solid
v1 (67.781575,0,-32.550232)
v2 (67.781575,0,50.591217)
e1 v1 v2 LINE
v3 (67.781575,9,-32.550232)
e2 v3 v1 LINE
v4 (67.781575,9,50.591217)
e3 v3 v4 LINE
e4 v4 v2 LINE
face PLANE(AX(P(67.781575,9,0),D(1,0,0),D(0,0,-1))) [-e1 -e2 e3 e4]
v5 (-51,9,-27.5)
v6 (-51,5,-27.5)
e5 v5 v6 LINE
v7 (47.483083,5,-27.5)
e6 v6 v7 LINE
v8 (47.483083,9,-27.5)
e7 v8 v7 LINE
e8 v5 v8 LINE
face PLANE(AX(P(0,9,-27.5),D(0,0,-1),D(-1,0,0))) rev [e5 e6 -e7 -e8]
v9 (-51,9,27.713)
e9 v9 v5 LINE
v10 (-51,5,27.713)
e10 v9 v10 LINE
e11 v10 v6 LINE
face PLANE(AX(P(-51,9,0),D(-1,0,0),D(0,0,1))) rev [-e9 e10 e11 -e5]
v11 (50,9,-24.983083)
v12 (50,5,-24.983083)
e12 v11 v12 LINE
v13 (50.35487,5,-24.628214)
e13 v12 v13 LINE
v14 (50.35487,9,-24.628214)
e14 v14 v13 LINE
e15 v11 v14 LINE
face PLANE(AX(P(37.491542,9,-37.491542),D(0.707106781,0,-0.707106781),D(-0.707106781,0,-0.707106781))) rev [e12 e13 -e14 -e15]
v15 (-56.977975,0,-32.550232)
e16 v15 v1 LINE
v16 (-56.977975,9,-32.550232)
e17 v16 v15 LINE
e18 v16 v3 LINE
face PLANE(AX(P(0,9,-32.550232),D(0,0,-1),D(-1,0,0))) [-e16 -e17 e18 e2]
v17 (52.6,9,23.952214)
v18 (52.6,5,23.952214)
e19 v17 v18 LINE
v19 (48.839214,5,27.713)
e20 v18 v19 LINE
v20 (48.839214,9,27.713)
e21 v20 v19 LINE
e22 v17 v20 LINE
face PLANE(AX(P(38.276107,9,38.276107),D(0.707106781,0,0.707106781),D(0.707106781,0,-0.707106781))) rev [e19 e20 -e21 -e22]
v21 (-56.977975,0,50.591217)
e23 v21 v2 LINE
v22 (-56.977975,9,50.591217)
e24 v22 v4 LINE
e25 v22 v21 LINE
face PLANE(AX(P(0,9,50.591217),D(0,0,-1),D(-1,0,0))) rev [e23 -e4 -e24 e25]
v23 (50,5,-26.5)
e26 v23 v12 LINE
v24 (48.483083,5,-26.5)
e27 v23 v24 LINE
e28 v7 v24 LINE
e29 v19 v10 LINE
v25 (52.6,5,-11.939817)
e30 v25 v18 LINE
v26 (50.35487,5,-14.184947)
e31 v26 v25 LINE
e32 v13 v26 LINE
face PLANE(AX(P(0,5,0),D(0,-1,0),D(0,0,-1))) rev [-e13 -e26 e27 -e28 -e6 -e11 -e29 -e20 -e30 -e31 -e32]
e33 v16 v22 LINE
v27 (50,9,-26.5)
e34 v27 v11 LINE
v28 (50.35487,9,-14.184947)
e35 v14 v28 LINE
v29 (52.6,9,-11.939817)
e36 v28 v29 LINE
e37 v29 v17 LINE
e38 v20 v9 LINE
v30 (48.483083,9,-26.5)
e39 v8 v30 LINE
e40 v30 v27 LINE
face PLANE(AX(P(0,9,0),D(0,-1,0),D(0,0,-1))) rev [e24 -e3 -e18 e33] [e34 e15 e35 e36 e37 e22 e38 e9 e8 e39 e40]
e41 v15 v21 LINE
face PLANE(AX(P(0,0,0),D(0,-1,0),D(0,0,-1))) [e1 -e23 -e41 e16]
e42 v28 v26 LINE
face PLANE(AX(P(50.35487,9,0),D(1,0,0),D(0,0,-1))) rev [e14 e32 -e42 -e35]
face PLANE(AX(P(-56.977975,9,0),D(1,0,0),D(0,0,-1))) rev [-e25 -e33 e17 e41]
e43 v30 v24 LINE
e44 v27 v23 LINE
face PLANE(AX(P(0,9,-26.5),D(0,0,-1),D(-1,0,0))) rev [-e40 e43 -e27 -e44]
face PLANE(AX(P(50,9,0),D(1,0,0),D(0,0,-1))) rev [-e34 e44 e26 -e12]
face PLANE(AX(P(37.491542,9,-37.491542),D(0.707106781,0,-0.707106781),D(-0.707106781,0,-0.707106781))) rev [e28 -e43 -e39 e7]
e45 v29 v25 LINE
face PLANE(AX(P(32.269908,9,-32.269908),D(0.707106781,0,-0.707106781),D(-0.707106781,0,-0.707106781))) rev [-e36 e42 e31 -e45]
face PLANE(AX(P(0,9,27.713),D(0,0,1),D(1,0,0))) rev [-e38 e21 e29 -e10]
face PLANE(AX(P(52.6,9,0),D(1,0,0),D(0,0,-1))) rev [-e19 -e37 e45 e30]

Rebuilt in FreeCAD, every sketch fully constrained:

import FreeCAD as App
import Part
import Sketcher
Q = App.Units.Quantity

doc = App.newDocument("Part")
params = doc.addObject("Spreadsheet::Sheet", "Params")
for row, (alias, value) in enumerate([
    ("sketch1_width", "100 mm"),
    ("sketch1_height", "53 mm"),
    ("pad1_length", "5 mm"),
    ("pad2_length", "9 mm"),
    ("pad3_length", "5 mm"),
], start=1):
    params.set(f"A{row}", alias)
    params.set(f"B{row}", "=" + value)
    params.setAlias(f"B{row}", alias)

body = doc.addObject("PartDesign::Body", "Body")

# Sketch on XZ plane
sketch1 = body.newObject("Sketcher::SketchObject", "Sketch")
sketch1.AttachmentSupport = (doc.getObject("XZ_Plane"), [""])
sketch1.MapMode = "FlatFace"
sketch1.addGeometry([
    Part.LineSegment(App.Vector(-50, -26, 0), App.Vector(-50, 26, 0)),
    Part.LineSegment(App.Vector(-50, 26, 0), App.Vector(50, 26, 0)),
    Part.LineSegment(App.Vector(50, 26, 0), App.Vector(50, -26, 0)),
    Part.LineSegment(App.Vector(50, -26, 0), App.Vector(-50, -26, 0)),
], False)
sketch1.addConstraint([
    Sketcher.Constraint("Coincident", 0, 2, 1, 1),
    Sketcher.Constraint("Coincident", 1, 2, 2, 1),
    Sketcher.Constraint("Coincident", 2, 2, 3, 1),
    Sketcher.Constraint("Coincident", 3, 2, 0, 1),
    Sketcher.Constraint("Vertical", 0),
    Sketcher.Constraint("Horizontal", 1),
    Sketcher.Constraint("Vertical", 2),
    Sketcher.Constraint("Horizontal", 3),
    Sketcher.Constraint("Symmetric", 0, 2, 2, 2, -1, 1),
    Sketcher.Constraint("DistanceX", 1, 1, 1, 2, Q("100 mm")),
    Sketcher.Constraint("DistanceY", 0, 1, 0, 2, Q("53 mm")),
])
sketch1.setExpression("Constraints[9]", "Params.sketch1_width")
sketch1.setExpression("Constraints[10]", "Params.sketch1_height")
pad1 = body.newObject("PartDesign::Pad", "Pad")
pad1.Profile = sketch1
pad1.setExpression("Length", "Params.pad1_length")
pad1.Reversed = True

# Sketch on XZ plane
sketch2 = body.newObject("Sketcher::SketchObject", "Sketch001")
sketch2.AttachmentSupport = (doc.getObject("XZ_Plane"), [""])
sketch2.MapMode = "FlatFace"
sketch2.addGeometry([
    Part.Circle(App.Vector(46.5, 24.2, 0), App.Vector(0, 0, 1), 1.6),
    Part.Circle(App.Vector(40.2, -24.1, 0), App.Vector(0, 0, 1), 1.6),
    Part.Circle(App.Vector(-34.8, -24.1, 0), App.Vector(0, 0, 1), 1.6),
    Part.Circle(App.Vector(-36, 24.2, 0), App.Vector(0, 0, 1), 1.6),
], False)
sketch2.addConstraint([
    Sketcher.Constraint("Equal", 0, 1),
    Sketcher.Constraint("Equal", 1, 2),
    Sketcher.Constraint("Equal", 2, 3),
    Sketcher.Constraint("Horizontal", 1, 3, 2, 3),
    Sketcher.Constraint("Horizontal", 0, 3, 3, 3),
    Sketcher.Constraint("Diameter", 0, Q("3.175 mm")),
    Sketcher.Constraint("DistanceX", 3, 3, 1, 3, Q("76.2 mm")),
    Sketcher.Constraint("DistanceX", -1, 1, 0, 3, Q("46.52 mm")),
    Sketcher.Constraint("DistanceX", -1, 1, 1, 3, Q("40.17 mm")),
    Sketcher.Constraint("DistanceX", 2, 3, -1, 1, Q("34.76 mm")),
    Sketcher.Constraint("DistanceY", 1, 3, 0, 3, Q("48.26 mm")),
    Sketcher.Constraint("DistanceY", -1, 1, 0, 3, Q("24.173 mm")),
])
pocket1 = body.newObject("PartDesign::Pocket", "Pocket")
pocket1.Profile = sketch2
pocket1.Type = "ThroughAll"

# Sketch on XZ plane
sketch3 = body.newObject("Sketcher::SketchObject", "Sketch002")
sketch3.AttachmentSupport = (doc.getObject("XZ_Plane"), [""])
sketch3.MapMode = "FlatFace"
sketch3.addGeometry([
    Part.LineSegment(App.Vector(-57, 50.6, 0), App.Vector(-57, -32.6, 0)),  # 0
    Part.LineSegment(App.Vector(-57, -32.6, 0), App.Vector(67.8, -32.6, 0)),  # 1
    Part.LineSegment(App.Vector(67.8, -32.6, 0), App.Vector(67.8, 50.6, 0)),  # 2
    Part.LineSegment(App.Vector(67.8, 50.6, 0), App.Vector(-57, 50.6, 0)),  # 3
    Part.LineSegment(App.Vector(52.6, 24, 0), App.Vector(52.6, -11.9, 0)),  # 4
    Part.LineSegment(App.Vector(52.6, -11.9, 0), App.Vector(50.4, -14.2, 0)),  # 5
    Part.LineSegment(App.Vector(50.4, -14.2, 0), App.Vector(50.4, -24.6, 0)),  # 6
    Part.LineSegment(App.Vector(50.4, -24.6, 0), App.Vector(50, -25, 0)),  # 7
    Part.LineSegment(App.Vector(50, -25, 0), App.Vector(50, -26.5, 0)),  # 8
    Part.LineSegment(App.Vector(50, -26.5, 0), App.Vector(48.5, -26.5, 0)),  # 9
    Part.LineSegment(App.Vector(48.5, -26.5, 0), App.Vector(47.5, -27.5, 0)),  # 10
    Part.LineSegment(App.Vector(47.5, -27.5, 0), App.Vector(-51, -27.5, 0)),  # 11
    Part.LineSegment(App.Vector(-51, -27.5, 0), App.Vector(-51, 27.7, 0)),  # 12
    Part.LineSegment(App.Vector(-51, 27.7, 0), App.Vector(48.8, 27.7, 0)),  # 13
    Part.LineSegment(App.Vector(48.8, 27.7, 0), App.Vector(52.6, 24, 0)),  # 14
], False)
sketch3.addConstraint([
    Sketcher.Constraint("Coincident", 0, 2, 1, 1),
    Sketcher.Constraint("Coincident", 1, 2, 2, 1),
    Sketcher.Constraint("Coincident", 2, 2, 3, 1),
    Sketcher.Constraint("Coincident", 3, 2, 0, 1),
    Sketcher.Constraint("Coincident", 4, 2, 5, 1),
    Sketcher.Constraint("Coincident", 5, 2, 6, 1),
    Sketcher.Constraint("Coincident", 6, 2, 7, 1),
    Sketcher.Constraint("Coincident", 7, 2, 8, 1),
    Sketcher.Constraint("Coincident", 8, 2, 9, 1),
    Sketcher.Constraint("Coincident", 9, 2, 10, 1),
    Sketcher.Constraint("Coincident", 10, 2, 11, 1),
    Sketcher.Constraint("Coincident", 11, 2, 12, 1),
    Sketcher.Constraint("Coincident", 12, 2, 13, 1),
    Sketcher.Constraint("Coincident", 13, 2, 14, 1),
    Sketcher.Constraint("Coincident", 14, 2, 4, 1),
    Sketcher.Constraint("Vertical", 0),
    Sketcher.Constraint("Horizontal", 1),
    Sketcher.Constraint("Vertical", 2),
    Sketcher.Constraint("Horizontal", 3),
    Sketcher.Constraint("Vertical", 4),
    Sketcher.Constraint("Vertical", 6),
    Sketcher.Constraint("Vertical", 8),
    Sketcher.Constraint("Horizontal", 9),
    Sketcher.Constraint("Horizontal", 11),
    Sketcher.Constraint("Vertical", 12),
    Sketcher.Constraint("Horizontal", 13),
    Sketcher.Constraint("Parallel", 5, 7),
    Sketcher.Constraint("Parallel", 7, 10),
    Sketcher.Constraint("Perpendicular", 10, 14),
    Sketcher.Constraint("Equal", 9, 8),
    Sketcher.Constraint("Angle", 5, Q("-135 deg")),
    Sketcher.Constraint("DistanceX", -1, 1, 7, 2, Q("50 mm")),
    Sketcher.Constraint("DistanceX", 11, 2, -1, 1, Q("51 mm")),
    Sketcher.Constraint("DistanceX", 10, 2, 9, 2, Q("1 mm")),
    Sketcher.Constraint("DistanceX", -1, 1, 4, 2, Q("52.6 mm")),
    Sketcher.Constraint("DistanceY", 8, 2, -1, 1, Q("26.5 mm")),
    Sketcher.Constraint("DistanceY", 12, 1, 12, 2, Q("55.213 mm")),
    Sketcher.Constraint("DistanceX", 1, 1, 1, 2, Q("124.759549 mm")),
    Sketcher.Constraint("DistanceY", 0, 2, 0, 1, Q("83.141448 mm")),
    Sketcher.Constraint("DistanceY", 4, 2, 4, 1, Q("35.89203 mm")),
    Sketcher.Constraint("DistanceY", 7, 2, 2, 2, Q("75.5743 mm")),
    Sketcher.Constraint("Distance", 7, Q("0.501862 mm")),
    Sketcher.Constraint("DistanceX", 9, 2, 9, 1, Q("1.516917 mm")),
    Sketcher.Constraint("DistanceX", 13, 1, 13, 2, Q("99.839214 mm")),
    Sketcher.Constraint("DistanceX", 13, 2, 2, 2, Q("18.942361 mm")),
])
pad2 = body.newObject("PartDesign::Pad", "Pad001")
pad2.Profile = sketch3
pad2.setExpression("Length", "Params.pad2_length")
pad2.Reversed = True

# Sketch on XZ plane
sketch4 = body.newObject("Sketcher::SketchObject", "Sketch003")
sketch4.AttachmentSupport = (doc.getObject("XZ_Plane"), [""])
sketch4.MapMode = "FlatFace"
sketch4.addGeometry([
    Part.LineSegment(App.Vector(-57, 51, 0), App.Vector(-57, -33, 0)),
    Part.LineSegment(App.Vector(-57, -33, 0), App.Vector(68, -33, 0)),
    Part.LineSegment(App.Vector(68, -33, 0), App.Vector(68, 51, 0)),
    Part.LineSegment(App.Vector(68, 51, 0), App.Vector(-57, 51, 0)),
], False)
sketch4.addConstraint([
    Sketcher.Constraint("Coincident", 0, 2, 1, 1),
    Sketcher.Constraint("Coincident", 1, 2, 2, 1),
    Sketcher.Constraint("Coincident", 2, 2, 3, 1),
    Sketcher.Constraint("Coincident", 3, 2, 0, 1),
    Sketcher.Constraint("Vertical", 0),
    Sketcher.Constraint("Horizontal", 1),
    Sketcher.Constraint("Vertical", 2),
    Sketcher.Constraint("Horizontal", 3),
    Sketcher.Constraint("DistanceX", 1, 1, 1, 2, Q("124.759549 mm")),
    Sketcher.Constraint("DistanceY", 0, 2, 0, 1, Q("83.141448 mm")),
    Sketcher.Constraint("DistanceY", 0, 2, -1, 1, Q("32.550232 mm")),
    Sketcher.Constraint("DistanceX", 0, 2, -1, 1, Q("56.977975 mm")),
])
pad3 = body.newObject("PartDesign::Pad", "Pad002")
pad3.Profile = sketch4
pad3.setExpression("Length", "Params.pad3_length")
pad3.Reversed = True

doc.recompute()
